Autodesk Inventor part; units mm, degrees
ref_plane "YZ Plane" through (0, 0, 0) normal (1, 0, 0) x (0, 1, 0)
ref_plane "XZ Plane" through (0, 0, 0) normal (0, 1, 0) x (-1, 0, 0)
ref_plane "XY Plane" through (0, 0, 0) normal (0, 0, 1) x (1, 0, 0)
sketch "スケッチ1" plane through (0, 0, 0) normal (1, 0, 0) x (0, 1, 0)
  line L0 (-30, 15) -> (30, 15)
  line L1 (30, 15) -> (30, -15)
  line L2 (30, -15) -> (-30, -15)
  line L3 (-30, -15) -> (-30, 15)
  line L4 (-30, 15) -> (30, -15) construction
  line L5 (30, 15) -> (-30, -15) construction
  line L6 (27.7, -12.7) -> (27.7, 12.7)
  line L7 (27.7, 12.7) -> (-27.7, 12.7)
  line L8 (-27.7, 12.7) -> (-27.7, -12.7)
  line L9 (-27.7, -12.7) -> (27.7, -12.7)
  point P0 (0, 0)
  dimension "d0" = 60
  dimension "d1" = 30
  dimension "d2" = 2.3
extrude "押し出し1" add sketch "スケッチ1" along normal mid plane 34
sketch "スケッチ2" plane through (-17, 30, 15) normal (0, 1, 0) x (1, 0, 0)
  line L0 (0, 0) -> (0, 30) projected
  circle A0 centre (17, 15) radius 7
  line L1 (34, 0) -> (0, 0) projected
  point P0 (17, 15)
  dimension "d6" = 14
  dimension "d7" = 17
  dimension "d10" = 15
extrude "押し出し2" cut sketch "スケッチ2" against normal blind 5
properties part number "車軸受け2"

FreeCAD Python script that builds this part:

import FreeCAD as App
import Part
import Sketcher

V = App.Vector
Q = App.Units.Quantity

doc = App.newDocument("Part")
params = doc.addObject("Spreadsheet::Sheet", "Params")
for row, (alias, value) in enumerate([
    ("sketch1_width", "60 mm"),
    ("sketch1_height", "30 mm"),
    ("pad1_length", "34 mm"),
    ("sketch2_diameter", "14 mm"),
    ("pocket1_length", "5 mm"),
], start=1):
    params.set(f"A{row}", alias)
    params.set(f"B{row}", "=" + value)
    params.setAlias(f"B{row}", alias)

body = doc.addObject("PartDesign::Body", "Body")

# Sketch on YZ plane
sketch1 = body.newObject("Sketcher::SketchObject", "Sketch")
sketch1.AttachmentSupport = (doc.getObject("YZ_Plane"), [""])
sketch1.MapMode = "FlatFace"
sketch1.addGeometry([
    Part.LineSegment(V(30, 15, 0), V(-30, 15, 0)),  # 0
    Part.LineSegment(V(-30, 15, 0), V(-30, -15, 0)),  # 1
    Part.LineSegment(V(-30, -15, 0), V(30, -15, 0)),  # 2
    Part.LineSegment(V(30, -15, 0), V(30, 15, 0)),  # 3
    Part.LineSegment(V(28, 13, 0), V(28, -13, 0)),  # 4
    Part.LineSegment(V(28, -13, 0), V(-28, -13, 0)),  # 5
    Part.LineSegment(V(-28, -13, 0), V(-28, 13, 0)),  # 6
    Part.LineSegment(V(-28, 13, 0), V(28, 13, 0)),  # 7
], False)
sketch1.addConstraint([
    Sketcher.Constraint("Coincident", 0, 2, 1, 1),
    Sketcher.Constraint("Coincident", 1, 2, 2, 1),
    Sketcher.Constraint("Coincident", 2, 2, 3, 1),
    Sketcher.Constraint("Coincident", 3, 2, 0, 1),
    Sketcher.Constraint("Coincident", 4, 2, 5, 1),
    Sketcher.Constraint("Coincident", 5, 2, 6, 1),
    Sketcher.Constraint("Coincident", 6, 2, 7, 1),
    Sketcher.Constraint("Coincident", 7, 2, 4, 1),
    Sketcher.Constraint("Horizontal", 0),
    Sketcher.Constraint("Vertical", 1),
    Sketcher.Constraint("Horizontal", 2),
    Sketcher.Constraint("Vertical", 3),
    Sketcher.Constraint("Vertical", 4),
    Sketcher.Constraint("Horizontal", 5),
    Sketcher.Constraint("Vertical", 6),
    Sketcher.Constraint("Horizontal", 7),
    Sketcher.Constraint("Symmetric", 0, 2, 2, 2, -1, 1),
    Sketcher.Constraint("Symmetric", 4, 2, 6, 2, -1, 1),
    Sketcher.Constraint("DistanceX", 0, 2, 0, 1, Q("60 mm")),
    Sketcher.Constraint("DistanceY", 1, 2, 1, 1, Q("30 mm")),
    Sketcher.Constraint("DistanceX", 4, 2, 2, 2, Q("2.3 mm")),
    Sketcher.Constraint("DistanceY", 2, 2, 4, 2, Q("2.3 mm")),
])
sketch1.setExpression("Constraints[18]", "Params.sketch1_width")
sketch1.setExpression("Constraints[19]", "Params.sketch1_height")
pad1 = body.newObject("PartDesign::Pad", "Pad")
pad1.Profile = sketch1
pad1.setExpression("Length", "Params.pad1_length")
pad1.Midplane = True

# Sketch on XZ plane
sketch2 = body.newObject("Sketcher::SketchObject", "Sketch001")
sketch2.AttachmentSupport = (doc.getObject("XZ_Plane"), [""])
sketch2.MapMode = "FlatFace"
sketch2.AttachmentOffset = App.Placement(V(0, 0, -30), App.Rotation())
sketch2.addGeometry(Part.Circle(V(0, 0, 0), V(0, 0, 1), 7), False)
sketch2.addConstraint([
    Sketcher.Constraint("Coincident", 0, 3, -1, 1),
    Sketcher.Constraint("Diameter", 0, Q("14 mm")),
])
sketch2.setExpression("Constraints[1]", "Params.sketch2_diameter")
pocket1 = body.newObject("PartDesign::Pocket", "Pocket")
pocket1.Profile = sketch2
pocket1.setExpression("Length", "Params.pocket1_length")
pocket1.Reversed = True

doc.recompute()
